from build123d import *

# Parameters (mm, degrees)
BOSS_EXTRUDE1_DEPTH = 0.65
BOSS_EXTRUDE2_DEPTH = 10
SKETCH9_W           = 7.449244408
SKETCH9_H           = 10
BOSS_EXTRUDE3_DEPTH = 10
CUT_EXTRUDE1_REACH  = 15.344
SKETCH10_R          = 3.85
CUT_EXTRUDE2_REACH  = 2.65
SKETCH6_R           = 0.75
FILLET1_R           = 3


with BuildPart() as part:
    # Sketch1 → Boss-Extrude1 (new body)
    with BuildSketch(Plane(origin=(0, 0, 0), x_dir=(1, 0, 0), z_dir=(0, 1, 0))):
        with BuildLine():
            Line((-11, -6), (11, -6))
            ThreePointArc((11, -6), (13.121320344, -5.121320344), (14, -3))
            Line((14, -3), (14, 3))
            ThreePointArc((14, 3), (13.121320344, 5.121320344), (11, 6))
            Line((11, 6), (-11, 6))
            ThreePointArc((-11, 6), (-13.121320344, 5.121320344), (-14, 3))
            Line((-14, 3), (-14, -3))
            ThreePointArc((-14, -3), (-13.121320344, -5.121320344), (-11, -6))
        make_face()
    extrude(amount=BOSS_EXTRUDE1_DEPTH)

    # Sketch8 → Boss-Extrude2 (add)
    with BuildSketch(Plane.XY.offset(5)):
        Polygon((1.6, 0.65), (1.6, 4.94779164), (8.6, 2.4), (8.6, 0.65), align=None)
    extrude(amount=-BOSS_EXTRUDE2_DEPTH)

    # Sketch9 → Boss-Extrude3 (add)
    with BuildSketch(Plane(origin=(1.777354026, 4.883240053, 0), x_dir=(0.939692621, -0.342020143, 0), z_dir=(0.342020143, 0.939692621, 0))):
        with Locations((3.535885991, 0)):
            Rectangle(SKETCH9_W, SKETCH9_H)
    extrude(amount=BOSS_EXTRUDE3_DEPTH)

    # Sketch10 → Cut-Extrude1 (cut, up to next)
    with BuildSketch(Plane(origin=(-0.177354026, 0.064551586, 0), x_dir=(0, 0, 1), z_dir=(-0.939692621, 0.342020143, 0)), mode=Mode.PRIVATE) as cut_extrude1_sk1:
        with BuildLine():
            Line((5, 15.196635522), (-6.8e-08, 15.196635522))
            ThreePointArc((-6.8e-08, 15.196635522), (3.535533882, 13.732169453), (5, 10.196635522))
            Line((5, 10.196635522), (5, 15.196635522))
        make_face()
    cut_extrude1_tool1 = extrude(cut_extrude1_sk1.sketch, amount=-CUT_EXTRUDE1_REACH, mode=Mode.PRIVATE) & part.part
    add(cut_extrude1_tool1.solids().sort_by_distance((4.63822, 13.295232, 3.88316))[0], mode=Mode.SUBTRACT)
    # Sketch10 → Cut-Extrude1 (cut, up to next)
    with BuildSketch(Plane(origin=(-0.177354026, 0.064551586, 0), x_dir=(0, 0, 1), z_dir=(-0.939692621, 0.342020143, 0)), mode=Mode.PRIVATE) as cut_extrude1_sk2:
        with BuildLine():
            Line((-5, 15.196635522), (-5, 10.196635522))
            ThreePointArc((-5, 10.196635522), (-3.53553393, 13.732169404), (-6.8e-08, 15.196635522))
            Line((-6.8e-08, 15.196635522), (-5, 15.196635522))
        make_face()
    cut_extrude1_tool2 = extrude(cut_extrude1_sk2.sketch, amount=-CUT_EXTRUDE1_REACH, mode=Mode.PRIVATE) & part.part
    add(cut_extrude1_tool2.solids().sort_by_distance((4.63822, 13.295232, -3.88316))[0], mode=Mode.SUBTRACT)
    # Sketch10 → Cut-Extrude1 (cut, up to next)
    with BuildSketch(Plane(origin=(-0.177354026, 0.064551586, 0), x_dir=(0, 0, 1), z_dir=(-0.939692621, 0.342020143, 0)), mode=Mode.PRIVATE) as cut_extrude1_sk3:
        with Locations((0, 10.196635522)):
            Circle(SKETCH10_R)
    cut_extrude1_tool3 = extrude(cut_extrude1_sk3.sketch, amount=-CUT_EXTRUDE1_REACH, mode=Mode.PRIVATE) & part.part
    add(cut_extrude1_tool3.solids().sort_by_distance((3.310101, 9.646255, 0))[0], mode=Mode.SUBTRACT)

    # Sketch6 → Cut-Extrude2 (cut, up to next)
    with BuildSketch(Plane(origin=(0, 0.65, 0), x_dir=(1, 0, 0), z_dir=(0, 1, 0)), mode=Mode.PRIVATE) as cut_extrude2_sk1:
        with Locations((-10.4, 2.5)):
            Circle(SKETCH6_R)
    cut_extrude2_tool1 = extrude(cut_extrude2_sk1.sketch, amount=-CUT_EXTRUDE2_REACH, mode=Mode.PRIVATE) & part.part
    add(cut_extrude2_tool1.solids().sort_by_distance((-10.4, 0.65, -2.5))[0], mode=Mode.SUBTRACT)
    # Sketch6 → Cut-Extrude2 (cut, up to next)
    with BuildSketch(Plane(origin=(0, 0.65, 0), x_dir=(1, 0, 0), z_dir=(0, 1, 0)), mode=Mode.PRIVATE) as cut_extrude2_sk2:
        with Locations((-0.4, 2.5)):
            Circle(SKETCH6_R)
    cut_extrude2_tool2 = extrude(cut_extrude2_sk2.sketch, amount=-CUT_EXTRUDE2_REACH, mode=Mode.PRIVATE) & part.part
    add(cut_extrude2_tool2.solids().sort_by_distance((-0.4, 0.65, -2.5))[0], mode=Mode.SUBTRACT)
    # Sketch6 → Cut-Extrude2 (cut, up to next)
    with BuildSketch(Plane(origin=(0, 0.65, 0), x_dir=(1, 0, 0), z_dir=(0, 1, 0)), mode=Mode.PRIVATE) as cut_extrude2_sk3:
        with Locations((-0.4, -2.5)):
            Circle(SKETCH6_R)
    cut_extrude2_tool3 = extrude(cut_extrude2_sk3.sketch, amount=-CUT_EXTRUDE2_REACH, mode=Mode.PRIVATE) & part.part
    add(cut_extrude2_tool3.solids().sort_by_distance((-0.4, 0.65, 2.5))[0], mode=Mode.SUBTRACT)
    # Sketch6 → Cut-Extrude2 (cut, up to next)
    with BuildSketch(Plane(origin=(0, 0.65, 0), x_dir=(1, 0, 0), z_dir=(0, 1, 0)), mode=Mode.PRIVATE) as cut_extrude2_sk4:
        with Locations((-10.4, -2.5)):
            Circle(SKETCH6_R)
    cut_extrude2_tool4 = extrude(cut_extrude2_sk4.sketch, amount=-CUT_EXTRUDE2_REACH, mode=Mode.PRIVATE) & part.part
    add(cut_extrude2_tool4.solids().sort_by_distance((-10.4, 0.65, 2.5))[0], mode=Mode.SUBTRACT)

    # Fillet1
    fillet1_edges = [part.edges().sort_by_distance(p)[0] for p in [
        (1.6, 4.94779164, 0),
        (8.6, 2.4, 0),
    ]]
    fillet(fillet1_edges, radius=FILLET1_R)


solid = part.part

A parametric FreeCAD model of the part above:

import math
import FreeCAD as App
import Part
import Sketcher

V = App.Vector
Q = App.Units.Quantity


def edges_at(feature, points):
    """Names of the edges that pass closest to the given points."""
    edges = feature.Shape.Edges
    near = lambda p: min(range(len(edges)), key=lambda i: edges[i].distToShape(Part.Vertex(*p))[0])
    return sorted({f"Edge{near(p) + 1}" for p in points})

doc = App.newDocument("Part")
body = doc.addObject("PartDesign::Body", "Body")

sketch1 = doc.addObject("Sketcher::SketchObject", "Sketch")
body.addObject(sketch1)
sketch1.AttachmentSupport = (doc.XZ_Plane, [""])
sketch1.MapMode = "FlatFace"
sketch1.addGeometry(Part.LineSegment(V(-11, 6, 0), V(11, 6, 0)), False)
sketch1.addGeometry(Part.ArcOfCircle(Part.Circle(V(11, 3, 0), V(0, 0, 1), 3), math.radians(0), math.radians(90)), False)
sketch1.addGeometry(Part.LineSegment(V(14, 3, 0), V(14, -3, 0)), False)
sketch1.addGeometry(Part.ArcOfCircle(Part.Circle(V(11, -3, 0), V(0, 0, 1), 3), math.radians(-90), math.radians(0)), False)
sketch1.addGeometry(Part.LineSegment(V(11, -6, 0), V(-11, -6, 0)), False)
sketch1.addGeometry(Part.ArcOfCircle(Part.Circle(V(-11, -3, 0), V(0, 0, 1), 3), math.radians(180), math.radians(270)), False)
sketch1.addGeometry(Part.LineSegment(V(-14, -3, 0), V(-14, 3, 0)), False)
sketch1.addGeometry(Part.ArcOfCircle(Part.Circle(V(-11, 3, 0), V(0, 0, 1), 3), math.radians(90), math.radians(180)), False)
sketch1.addConstraint(Sketcher.Constraint("Tangent", 0, 2, 1, 2))
sketch1.addConstraint(Sketcher.Constraint("Tangent", 1, 1, 2, 1))
sketch1.addConstraint(Sketcher.Constraint("Tangent", 2, 2, 3, 2))
sketch1.addConstraint(Sketcher.Constraint("Tangent", 3, 1, 4, 1))
sketch1.addConstraint(Sketcher.Constraint("Tangent", 4, 2, 5, 2))
sketch1.addConstraint(Sketcher.Constraint("Tangent", 5, 1, 6, 1))
sketch1.addConstraint(Sketcher.Constraint("Tangent", 6, 2, 7, 2))
sketch1.addConstraint(Sketcher.Constraint("Tangent", 7, 1, 0, 1))
sketch1.addConstraint(Sketcher.Constraint("Horizontal", 0))
sketch1.addConstraint(Sketcher.Constraint("Vertical", 2))
sketch1.addConstraint(Sketcher.Constraint("Horizontal", 4))
sketch1.addConstraint(Sketcher.Constraint("Vertical", 6))
sketch1.addConstraint(Sketcher.Constraint("Equal", 1, 3))
sketch1.addConstraint(Sketcher.Constraint("Equal", 3, 5))
sketch1.addConstraint(Sketcher.Constraint("Equal", 5, 7))
sketch1.addConstraint(Sketcher.Constraint("Symmetric", 1, 3, 5, 3, -1, 1))
sketch1.addConstraint(Sketcher.Constraint("Radius", 1, Q("3 mm")))
sketch1.addConstraint(Sketcher.Constraint("DistanceX", 0, 1, 0, 2, Q("22 mm")))
sketch1.addConstraint(Sketcher.Constraint("DistanceY", 2, 2, 2, 1, Q("6 mm")))
pad1 = doc.addObject("PartDesign::Pad", "Pad")
body.addObject(pad1)
pad1.Profile = sketch1
pad1.Length = 0.65
pad1.Reversed = True

sketch2 = doc.addObject("Sketcher::SketchObject", "Sketch001")
body.addObject(sketch2)
sketch2.AttachmentSupport = (doc.XY_Plane, [""])
sketch2.MapMode = "FlatFace"
sketch2.AttachmentOffset = App.Placement(V(0, 0, 5), App.Rotation())
sketch2.addGeometry(Part.LineSegment(V(1.6, 4.9, 0), V(1.6, 0.7, 0)), False)
sketch2.addGeometry(Part.LineSegment(V(1.6, 0.7, 0), V(8.6, 0.7, 0)), False)
sketch2.addGeometry(Part.LineSegment(V(8.6, 0.7, 0), V(8.6, 2.4, 0)), False)
sketch2.addGeometry(Part.LineSegment(V(8.6, 2.4, 0), V(1.6, 4.9, 0)), False)
sketch2.addConstraint(Sketcher.Constraint("Coincident", 0, 2, 1, 1))
sketch2.addConstraint(Sketcher.Constraint("Coincident", 1, 2, 2, 1))
sketch2.addConstraint(Sketcher.Constraint("Coincident", 2, 2, 3, 1))
sketch2.addConstraint(Sketcher.Constraint("Coincident", 3, 2, 0, 1))
sketch2.addConstraint(Sketcher.Constraint("Vertical", 0))
sketch2.addConstraint(Sketcher.Constraint("Horizontal", 1))
sketch2.addConstraint(Sketcher.Constraint("Vertical", 2))
sketch2.addConstraint(Sketcher.Constraint("DistanceX", 1, 1, 1, 2, Q("7 mm")))
sketch2.addConstraint(Sketcher.Constraint("Angle", 3, Q("160 deg")))
sketch2.addConstraint(Sketcher.Constraint("DistanceY", 2, 1, 2, 2, Q("1.75 mm")))
sketch2.addConstraint(Sketcher.Constraint("DistanceX", -1, 1, 0, 2, Q("1.6 mm")))
sketch2.addConstraint(Sketcher.Constraint("DistanceY", -1, 1, 2, 2, Q("2.4 mm")))
pad2 = doc.addObject("PartDesign::Pad", "Pad001")
body.addObject(pad2)
pad2.Profile = sketch2
pad2.Length = 10
pad2.Reversed = True

sketch3 = doc.addObject("Sketcher::SketchObject", "Sketch002")
body.addObject(sketch3)
sketch3.Placement = App.Placement(V(1.777354, 4.88324, 0), App.Rotation(V(0.939692621, -0.342020143, 0), V(0, 0, -1), V(0.342020143, 0.939692621, 0), "ZXY"))
sketch3.addGeometry(Part.LineSegment(V(0, 5, 0), V(0, -5, 0)), False)
sketch3.addGeometry(Part.LineSegment(V(0, -5, 0), V(7, -5, 0)), False)
sketch3.addGeometry(Part.LineSegment(V(7, -5, 0), V(7, 5, 0)), False)
sketch3.addGeometry(Part.LineSegment(V(7, 5, 0), V(0, 5, 0)), False)
sketch3.addConstraint(Sketcher.Constraint("Coincident", 0, 2, 1, 1))
sketch3.addConstraint(Sketcher.Constraint("Coincident", 1, 2, 2, 1))
sketch3.addConstraint(Sketcher.Constraint("Coincident", 2, 2, 3, 1))
sketch3.addConstraint(Sketcher.Constraint("Coincident", 3, 2, 0, 1))
sketch3.addConstraint(Sketcher.Constraint("Vertical", 0))
sketch3.addConstraint(Sketcher.Constraint("Horizontal", 1))
sketch3.addConstraint(Sketcher.Constraint("Vertical", 2))
sketch3.addConstraint(Sketcher.Constraint("Horizontal", 3))
sketch3.addConstraint(Sketcher.Constraint("DistanceY", 0, 2, 0, 1, Q("10 mm")))
sketch3.addConstraint(Sketcher.Constraint("DistanceY", 0, 2, -1, 1, Q("5 mm")))
sketch3.addConstraint(Sketcher.Constraint("DistanceX", 1, 1, 1, 2, Q("7.449244 mm")))
sketch3.addConstraint(Sketcher.Constraint("DistanceX", -1, 1, 1, 2, Q("7.260508 mm")))
pad3 = doc.addObject("PartDesign::Pad", "Pad002")
body.addObject(pad3)
pad3.Profile = sketch3
pad3.Length = 10

sketch4 = doc.addObject("Sketcher::SketchObject", "Sketch003")
body.addObject(sketch4)
sketch4.Placement = App.Placement(V(-0.177354, 0.064552, 0), App.Rotation(V(0, 0, 1), V(0.342020143, 0.939692621, 0), V(-0.939692621, 0.342020143, 0), "ZXY"))
sketch4.addGeometry(Part.LineSegment(V(5, 15.2, 0), V(0, 15.2, 0)), False)
sketch4.addGeometry(Part.ArcOfCircle(Part.Circle(V(0, 10.2, 0), V(0, 0, 1), 5), math.radians(0), math.radians(90)), False)
sketch4.addGeometry(Part.LineSegment(V(5, 10.2, 0), V(5, 15.2, 0)), False)
sketch4.addConstraint(Sketcher.Constraint("Tangent", 0, 2, 1, 2))
sketch4.addConstraint(Sketcher.Constraint("Tangent", 1, 1, 2, 1))
sketch4.addConstraint(Sketcher.Constraint("Coincident", 2, 2, 0, 1))
sketch4.addConstraint(Sketcher.Constraint("Horizontal", 0))
sketch4.addConstraint(Sketcher.Constraint("Vertical", 2))
sketch4.addConstraint(Sketcher.Constraint("PointOnObject", 1, 3, -2))
sketch4.addConstraint(Sketcher.Constraint("Radius", 1, Q("5 mm")))
sketch4.addConstraint(Sketcher.Constraint("DistanceY", -1, 1, 1, 3, Q("10.196636 mm")))
pocket1 = doc.addObject("PartDesign::Pocket", "Pocket")
body.addObject(pocket1)
pocket1.Profile = sketch4
pocket1.Type = "UpToFirst"

sketch5 = doc.addObject("Sketcher::SketchObject", "Sketch004")
body.addObject(sketch5)
sketch5.Placement = App.Placement(V(-0.177354, 0.064552, 0), App.Rotation(V(0, 0, 1), V(0.342020143, 0.939692621, 0), V(-0.939692621, 0.342020143, 0), "ZXY"))
sketch5.addGeometry(Part.LineSegment(V(-5, 15.2, 0), V(-5, 10.2, 0)), False)
sketch5.addGeometry(Part.ArcOfCircle(Part.Circle(V(0, 10.2, 0), V(0, 0, 1), 5), math.radians(90), math.radians(180)), False)
sketch5.addGeometry(Part.LineSegment(V(0, 15.2, 0), V(-5, 15.2, 0)), False)
sketch5.addConstraint(Sketcher.Constraint("Tangent", 0, 2, 1, 2))
sketch5.addConstraint(Sketcher.Constraint("Tangent", 1, 1, 2, 1))
sketch5.addConstraint(Sketcher.Constraint("Coincident", 2, 2, 0, 1))
sketch5.addConstraint(Sketcher.Constraint("Vertical", 0))
sketch5.addConstraint(Sketcher.Constraint("Horizontal", 2))
sketch5.addConstraint(Sketcher.Constraint("PointOnObject", 1, 3, -2))
sketch5.addConstraint(Sketcher.Constraint("Radius", 1, Q("5 mm")))
sketch5.addConstraint(Sketcher.Constraint("DistanceY", -1, 1, 1, 3, Q("10.196636 mm")))
pocket2 = doc.addObject("PartDesign::Pocket", "Pocket001")
body.addObject(pocket2)
pocket2.Profile = sketch5
pocket2.Type = "UpToFirst"

sketch6 = doc.addObject("Sketcher::SketchObject", "Sketch005")
body.addObject(sketch6)
sketch6.Placement = App.Placement(V(-0.177354, 0.064552, 0), App.Rotation(V(0, 0, 1), V(0.342020143, 0.939692621, 0), V(-0.939692621, 0.342020143, 0), "ZXY"))
sketch6.addGeometry(Part.Circle(V(0, 10.2, 0), V(0, 0, 1), 3.9), False)
sketch6.addConstraint(Sketcher.Constraint("PointOnObject", 0, 3, -2))
sketch6.addConstraint(Sketcher.Constraint("Diameter", 0, Q("7.7 mm")))
sketch6.addConstraint(Sketcher.Constraint("DistanceY", -1, 1, 0, 3, Q("10.196636 mm")))
pocket3 = doc.addObject("PartDesign::Pocket", "Pocket002")
body.addObject(pocket3)
pocket3.Profile = sketch6
pocket3.Type = "UpToFirst"

sketch7 = doc.addObject("Sketcher::SketchObject", "Sketch006")
body.addObject(sketch7)
sketch7.AttachmentSupport = (doc.XZ_Plane, [""])
sketch7.MapMode = "FlatFace"
sketch7.AttachmentOffset = App.Placement(V(0, 0, -0.65), App.Rotation())
sketch7.addGeometry(Part.Circle(V(-10.4, -2.5, 0), V(0, 0, 1), 0.8), False)
sketch7.addConstraint(Sketcher.Constraint("Diameter", 0, Q("1.5 mm")))
sketch7.addConstraint(Sketcher.Constraint("DistanceX", 0, 3, -1, 1, Q("10.4 mm")))
sketch7.addConstraint(Sketcher.Constraint("DistanceY", 0, 3, -1, 1, Q("2.5 mm")))
pocket4 = doc.addObject("PartDesign::Pocket", "Pocket003")
body.addObject(pocket4)
pocket4.Profile = sketch7
pocket4.Type = "UpToFirst"
pocket4.Reversed = True

sketch8 = doc.addObject("Sketcher::SketchObject", "Sketch007")
body.addObject(sketch8)
sketch8.AttachmentSupport = (doc.XZ_Plane, [""])
sketch8.MapMode = "FlatFace"
sketch8.AttachmentOffset = App.Placement(V(0, 0, -0.65), App.Rotation())
sketch8.addGeometry(Part.Circle(V(-0.4, -2.5, 0), V(0, 0, 1), 0.8), False)
sketch8.addConstraint(Sketcher.Constraint("Diameter", 0, Q("1.5 mm")))
sketch8.addConstraint(Sketcher.Constraint("DistanceX", 0, 3, -1, 1, Q("0.4 mm")))
sketch8.addConstraint(Sketcher.Constraint("DistanceY", 0, 3, -1, 1, Q("2.5 mm")))
pocket5 = doc.addObject("PartDesign::Pocket", "Pocket004")
body.addObject(pocket5)
pocket5.Profile = sketch8
pocket5.Type = "UpToFirst"
pocket5.Reversed = True

sketch9 = doc.addObject("Sketcher::SketchObject", "Sketch008")
body.addObject(sketch9)
sketch9.AttachmentSupport = (doc.XZ_Plane, [""])
sketch9.MapMode = "FlatFace"
sketch9.AttachmentOffset = App.Placement(V(0, 0, -0.65), App.Rotation())
sketch9.addGeometry(Part.Circle(V(-0.4, 2.5, 0), V(0, 0, 1), 0.8), False)
sketch9.addConstraint(Sketcher.Constraint("Diameter", 0, Q("1.5 mm")))
sketch9.addConstraint(Sketcher.Constraint("DistanceX", 0, 3, -1, 1, Q("0.4 mm")))
sketch9.addConstraint(Sketcher.Constraint("DistanceY", -1, 1, 0, 3, Q("2.5 mm")))
pocket6 = doc.addObject("PartDesign::Pocket", "Pocket005")
body.addObject(pocket6)
pocket6.Profile = sketch9
pocket6.Type = "UpToFirst"
pocket6.Reversed = True

sketch10 = doc.addObject("Sketcher::SketchObject", "Sketch009")
body.addObject(sketch10)
sketch10.AttachmentSupport = (doc.XZ_Plane, [""])
sketch10.MapMode = "FlatFace"
sketch10.AttachmentOffset = App.Placement(V(0, 0, -0.65), App.Rotation())
sketch10.addGeometry(Part.Circle(V(-10.4, 2.5, 0), V(0, 0, 1), 0.8), False)
sketch10.addConstraint(Sketcher.Constraint("Diameter", 0, Q("1.5 mm")))
sketch10.addConstraint(Sketcher.Constraint("DistanceX", 0, 3, -1, 1, Q("10.4 mm")))
sketch10.addConstraint(Sketcher.Constraint("DistanceY", -1, 1, 0, 3, Q("2.5 mm")))
pocket7 = doc.addObject("PartDesign::Pocket", "Pocket006")
body.addObject(pocket7)
pocket7.Profile = sketch10
pocket7.Type = "UpToFirst"
pocket7.Reversed = True
doc.recompute()

fillet = doc.addObject("PartDesign::Fillet", "Fillet")
body.addObject(fillet)
fillet.Base = (pocket7, edges_at(pocket7, [(1.6, 4.948, 0), (8.6, 2.4, 0)]))
fillet.Radius = 3

doc.recompute()
